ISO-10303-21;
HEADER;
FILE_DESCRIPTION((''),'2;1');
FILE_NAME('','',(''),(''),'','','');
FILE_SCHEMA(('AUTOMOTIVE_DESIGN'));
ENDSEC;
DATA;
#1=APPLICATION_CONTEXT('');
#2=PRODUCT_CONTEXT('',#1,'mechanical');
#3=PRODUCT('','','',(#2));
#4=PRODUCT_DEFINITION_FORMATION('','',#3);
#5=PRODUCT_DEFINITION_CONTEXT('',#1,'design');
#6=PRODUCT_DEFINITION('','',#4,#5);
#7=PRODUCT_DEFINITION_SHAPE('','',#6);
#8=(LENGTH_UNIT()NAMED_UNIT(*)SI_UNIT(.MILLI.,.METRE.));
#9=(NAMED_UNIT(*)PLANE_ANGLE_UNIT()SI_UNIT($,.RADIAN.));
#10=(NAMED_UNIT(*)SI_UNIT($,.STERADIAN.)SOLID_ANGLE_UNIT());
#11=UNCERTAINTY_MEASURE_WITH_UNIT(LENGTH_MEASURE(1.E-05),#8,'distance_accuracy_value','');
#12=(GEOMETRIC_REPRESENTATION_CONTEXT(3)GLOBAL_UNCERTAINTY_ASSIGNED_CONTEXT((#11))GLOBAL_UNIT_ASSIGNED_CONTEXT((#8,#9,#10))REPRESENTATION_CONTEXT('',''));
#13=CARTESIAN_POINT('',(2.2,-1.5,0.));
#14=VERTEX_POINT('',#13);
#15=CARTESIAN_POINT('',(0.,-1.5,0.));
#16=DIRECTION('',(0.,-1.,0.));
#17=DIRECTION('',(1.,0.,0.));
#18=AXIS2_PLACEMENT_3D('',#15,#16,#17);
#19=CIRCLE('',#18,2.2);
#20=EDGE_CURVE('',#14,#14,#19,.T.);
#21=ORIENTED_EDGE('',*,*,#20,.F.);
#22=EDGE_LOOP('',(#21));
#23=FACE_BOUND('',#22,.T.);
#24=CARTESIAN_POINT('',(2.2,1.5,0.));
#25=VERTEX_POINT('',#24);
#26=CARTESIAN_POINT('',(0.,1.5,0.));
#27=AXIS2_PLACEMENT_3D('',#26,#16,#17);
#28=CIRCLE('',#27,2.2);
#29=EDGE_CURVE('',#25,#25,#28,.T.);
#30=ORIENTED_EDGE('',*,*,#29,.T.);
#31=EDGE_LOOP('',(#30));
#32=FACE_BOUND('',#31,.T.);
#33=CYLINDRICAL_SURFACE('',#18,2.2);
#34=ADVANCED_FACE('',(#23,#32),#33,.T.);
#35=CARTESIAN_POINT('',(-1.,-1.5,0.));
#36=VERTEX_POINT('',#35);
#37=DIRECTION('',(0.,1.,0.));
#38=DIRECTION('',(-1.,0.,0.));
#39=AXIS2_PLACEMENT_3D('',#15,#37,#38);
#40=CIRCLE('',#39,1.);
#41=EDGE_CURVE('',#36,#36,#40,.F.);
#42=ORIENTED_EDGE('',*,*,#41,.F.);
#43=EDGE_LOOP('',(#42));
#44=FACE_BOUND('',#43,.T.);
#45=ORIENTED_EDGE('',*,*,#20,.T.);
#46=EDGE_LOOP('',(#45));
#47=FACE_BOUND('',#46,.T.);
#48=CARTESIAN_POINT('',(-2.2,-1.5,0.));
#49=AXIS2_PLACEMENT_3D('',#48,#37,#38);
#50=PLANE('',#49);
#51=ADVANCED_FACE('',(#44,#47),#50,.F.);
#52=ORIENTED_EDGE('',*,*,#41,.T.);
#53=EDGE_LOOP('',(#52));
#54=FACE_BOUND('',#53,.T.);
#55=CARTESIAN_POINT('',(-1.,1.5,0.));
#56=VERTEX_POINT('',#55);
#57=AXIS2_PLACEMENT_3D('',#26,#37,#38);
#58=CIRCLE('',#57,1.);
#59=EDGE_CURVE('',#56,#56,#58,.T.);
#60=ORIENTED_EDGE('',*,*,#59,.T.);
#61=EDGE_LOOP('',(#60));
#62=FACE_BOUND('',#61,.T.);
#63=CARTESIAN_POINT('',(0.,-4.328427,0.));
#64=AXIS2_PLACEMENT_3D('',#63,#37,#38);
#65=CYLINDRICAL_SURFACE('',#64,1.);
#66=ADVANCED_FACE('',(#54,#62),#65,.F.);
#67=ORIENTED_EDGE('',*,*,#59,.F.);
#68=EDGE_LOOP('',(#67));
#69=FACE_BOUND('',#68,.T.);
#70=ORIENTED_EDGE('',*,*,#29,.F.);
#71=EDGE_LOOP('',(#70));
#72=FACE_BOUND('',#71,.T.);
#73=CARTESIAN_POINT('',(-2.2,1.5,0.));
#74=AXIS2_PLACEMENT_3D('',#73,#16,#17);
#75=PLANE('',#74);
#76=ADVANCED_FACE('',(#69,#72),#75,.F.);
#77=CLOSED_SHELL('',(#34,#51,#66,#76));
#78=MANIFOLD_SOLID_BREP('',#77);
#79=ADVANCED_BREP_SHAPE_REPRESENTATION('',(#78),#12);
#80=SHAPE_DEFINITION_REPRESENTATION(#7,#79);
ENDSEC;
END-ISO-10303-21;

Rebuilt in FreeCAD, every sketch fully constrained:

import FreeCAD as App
import Part
import Sketcher
from FreeCAD import Vector
Q = App.Units.Quantity

doc = App.newDocument("Part")
body = doc.addObject("PartDesign::Body", "Body")

sketch1 = body.newObject("Sketcher::SketchObject", "Sketch")
sketch1.AttachmentSupport = (doc.getObject("XY_Plane"), [""])
sketch1.MapMode = "FlatFace"
sketch1.addGeometry([
    Part.LineSegment(Vector(-2.2, 1.5, 0), Vector(-2.2, -1.5, 0)),
    Part.LineSegment(Vector(-2.2, -1.5, 0), Vector(0, -1.5, 0)),
    Part.LineSegment(Vector(0, -1.5, 0), Vector(0, 1.5, 0)),
    Part.LineSegment(Vector(0, 1.5, 0), Vector(-2.2, 1.5, 0)),
], False)
sketch1.addConstraint([
    Sketcher.Constraint("Coincident", 0, 2, 1, 1),
    Sketcher.Constraint("Coincident", 1, 2, 2, 1),
    Sketcher.Constraint("Coincident", 2, 2, 3, 1),
    Sketcher.Constraint("Coincident", 3, 2, 0, 1),
    Sketcher.Constraint("Vertical", 0),
    Sketcher.Constraint("Horizontal", 1),
    Sketcher.Constraint("Vertical", 2),
    Sketcher.Constraint("Horizontal", 3),
    Sketcher.Constraint("Symmetric", 1, 2, 2, 2, -1, 1),
    Sketcher.Constraint("DistanceY", 0, 2, 0, 1, Q("3 mm")),
    Sketcher.Constraint("DistanceX", 1, 1, 1, 2, Q("2.2 mm")),
])
revolution = body.newObject("PartDesign::Revolution", "Revolution")
revolution.Profile = sketch1
revolution.ReferenceAxis = (sketch1, ["V_Axis"])
revolution.Angle = 360

sketch2 = body.newObject("Sketcher::SketchObject", "Sketch001")
sketch2.AttachmentSupport = (doc.getObject("XZ_Plane"), [""])
sketch2.MapMode = "FlatFace"
sketch2.AttachmentOffset = App.Placement(Vector(0, 0, -1.5), App.Rotation())
sketch2.addGeometry(Part.Circle(Vector(0, 0, 0), Vector(0, 0, 1), 1), False)
sketch2.addConstraint([
    Sketcher.Constraint("Coincident", 0, 3, -1, 1),
    Sketcher.Constraint("Diameter", 0, Q("2 mm")),
])
pocket1 = body.newObject("PartDesign::Pocket", "Pocket")
pocket1.Profile = sketch2
pocket1.Length = 3
pocket1.Reversed = True

doc.recompute()
